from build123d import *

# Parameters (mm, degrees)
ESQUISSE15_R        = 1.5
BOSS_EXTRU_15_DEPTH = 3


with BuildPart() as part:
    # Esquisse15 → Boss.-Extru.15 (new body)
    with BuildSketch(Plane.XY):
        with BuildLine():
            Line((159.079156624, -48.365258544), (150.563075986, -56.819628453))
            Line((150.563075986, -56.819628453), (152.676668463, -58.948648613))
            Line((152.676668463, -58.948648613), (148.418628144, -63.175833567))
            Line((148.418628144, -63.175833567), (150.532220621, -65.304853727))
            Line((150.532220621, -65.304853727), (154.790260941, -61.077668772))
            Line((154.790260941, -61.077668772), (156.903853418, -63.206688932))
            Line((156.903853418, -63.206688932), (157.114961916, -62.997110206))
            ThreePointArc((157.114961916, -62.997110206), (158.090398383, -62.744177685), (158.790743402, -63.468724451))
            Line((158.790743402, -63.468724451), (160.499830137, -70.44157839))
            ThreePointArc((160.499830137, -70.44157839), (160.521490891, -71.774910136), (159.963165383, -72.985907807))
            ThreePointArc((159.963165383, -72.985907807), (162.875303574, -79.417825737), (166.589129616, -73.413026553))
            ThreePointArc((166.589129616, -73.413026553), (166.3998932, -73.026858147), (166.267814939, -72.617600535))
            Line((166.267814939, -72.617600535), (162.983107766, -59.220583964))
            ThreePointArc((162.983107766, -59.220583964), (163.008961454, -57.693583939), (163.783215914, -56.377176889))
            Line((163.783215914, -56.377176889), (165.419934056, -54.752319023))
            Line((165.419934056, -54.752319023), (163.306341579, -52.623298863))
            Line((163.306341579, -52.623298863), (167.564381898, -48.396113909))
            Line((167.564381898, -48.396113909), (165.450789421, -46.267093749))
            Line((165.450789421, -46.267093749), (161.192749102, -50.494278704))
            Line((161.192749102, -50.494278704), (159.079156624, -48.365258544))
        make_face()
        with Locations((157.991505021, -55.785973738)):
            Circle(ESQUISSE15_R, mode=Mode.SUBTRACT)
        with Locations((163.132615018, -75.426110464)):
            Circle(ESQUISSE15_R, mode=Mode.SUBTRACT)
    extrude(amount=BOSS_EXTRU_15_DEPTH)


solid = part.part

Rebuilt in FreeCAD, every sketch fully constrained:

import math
import FreeCAD as App
import Part
import Sketcher

V = App.Vector
Q = App.Units.Quantity

doc = App.newDocument("Part")
body = doc.addObject("PartDesign::Body", "Body")

sketch1 = body.newObject("Sketcher::SketchObject", "Sketch")
sketch1.AttachmentSupport = (doc.getObject("XY_Plane"), [""])
sketch1.MapMode = "FlatFace"
sketch1.addGeometry([
    Part.LineSegment(V(159.08, -48.37, 0), V(150.56, -56.82, 0)),
    Part.LineSegment(V(150.56, -56.82, 0), V(152.68, -58.95, 0)),
    Part.LineSegment(V(152.68, -58.95, 0), V(148.42, -63.18, 0)),
    Part.LineSegment(V(148.42, -63.18, 0), V(150.53, -65.3, 0)),
    Part.LineSegment(V(150.53, -65.3, 0), V(154.79, -61.08, 0)),
    Part.LineSegment(V(154.79, -61.08, 0), V(156.9, -63.21, 0)),
    Part.LineSegment(V(156.9, -63.21, 0), V(157.11, -63, 0)),
    Part.ArcOfCircle(Part.Circle(V(157.82, -63.71, 0), V(0, 0, 1), 1), math.radians(14), math.radians(135)),
    Part.LineSegment(V(158.79, -63.47, 0), V(160.5, -70.44, 0)),
    Part.ArcOfCircle(Part.Circle(V(157.59, -71.16, 0), V(0, 0, 1), 3), math.radians(-38), math.radians(14)),
    Part.ArcOfCircle(Part.Circle(V(163.13, -75.43, 0), V(0, 0, 1), 4), math.radians(142), math.radians(390)),
    Part.ArcOfCircle(Part.Circle(V(169.18, -71.9, 0), V(0, 0, 1), 3), math.radians(-166.22), math.radians(-149.78)),
    Part.LineSegment(V(166.27, -72.62, 0), V(162.98, -59.22, 0)),
    Part.ArcOfCircle(Part.Circle(V(165.9, -58.51, 0), V(0, 0, 1), 3), math.radians(135), math.radians(194)),
    Part.LineSegment(V(163.78, -56.38, 0), V(165.42, -54.75, 0)),
    Part.LineSegment(V(165.42, -54.75, 0), V(163.31, -52.62, 0)),
    Part.LineSegment(V(163.31, -52.62, 0), V(167.56, -48.4, 0)),
    Part.LineSegment(V(167.56, -48.4, 0), V(165.45, -46.27, 0)),
    Part.LineSegment(V(165.45, -46.27, 0), V(161.19, -50.49, 0)),
    Part.LineSegment(V(161.19, -50.49, 0), V(159.08, -48.37, 0)),
    Part.Circle(V(163.13, -75.43, 0), V(0, 0, 1), 1.5),
    Part.Circle(V(157.99, -55.79, 0), V(0, 0, 1), 1.5),
], False)
sketch1.addConstraint([
    Sketcher.Constraint("Coincident", 0, 2, 1, 1),
    Sketcher.Constraint("Coincident", 1, 2, 2, 1),
    Sketcher.Constraint("Coincident", 2, 2, 3, 1),
    Sketcher.Constraint("Coincident", 3, 2, 4, 1),
    Sketcher.Constraint("Coincident", 4, 2, 5, 1),
    Sketcher.Constraint("Coincident", 5, 2, 6, 1),
    Sketcher.Constraint("Tangent", 6, 2, 7, 2),
    Sketcher.Constraint("Tangent", 7, 1, 8, 1),
    Sketcher.Constraint("Tangent", 8, 2, 9, 2),
    Sketcher.Constraint("Tangent", 9, 1, 10, 1),
    Sketcher.Constraint("Tangent", 10, 2, 11, 2),
    Sketcher.Constraint("Tangent", 11, 1, 12, 1),
    Sketcher.Constraint("Tangent", 12, 2, 13, 2),
    Sketcher.Constraint("Tangent", 13, 1, 14, 1),
    Sketcher.Constraint("Coincident", 14, 2, 15, 1),
    Sketcher.Constraint("Coincident", 15, 2, 16, 1),
    Sketcher.Constraint("Coincident", 16, 2, 17, 1),
    Sketcher.Constraint("Coincident", 17, 2, 18, 1),
    Sketcher.Constraint("Coincident", 18, 2, 19, 1),
    Sketcher.Constraint("Coincident", 19, 2, 0, 1),
    Sketcher.Constraint("Coincident", 20, 3, 10, 3),
    Sketcher.Constraint("Equal", 9, 11),
    Sketcher.Constraint("Equal", 11, 13),
    Sketcher.Constraint("Equal", 20, 21),
    Sketcher.Constraint("Perpendicular", 0, 1),
    Sketcher.Constraint("Perpendicular", 1, 2),
    Sketcher.Constraint("Perpendicular", 2, 3),
    Sketcher.Constraint("Perpendicular", 3, 4),
    Sketcher.Constraint("Perpendicular", 4, 5),
    Sketcher.Constraint("Perpendicular", 5, 6),
    Sketcher.Constraint("Parallel", 6, 14),
    Sketcher.Constraint("Perpendicular", 14, 15),
    Sketcher.Constraint("Perpendicular", 15, 16),
    Sketcher.Constraint("Perpendicular", 16, 17),
    Sketcher.Constraint("Perpendicular", 17, 18),
    Sketcher.Constraint("Perpendicular", 18, 19),
    Sketcher.Constraint("Equal", 1, 3),
    Sketcher.Constraint("Equal", 2, 4),
    Sketcher.Constraint("Equal", 3, 5),
    Sketcher.Constraint("Equal", 5, 15),
    Sketcher.Constraint("Equal", 4, 16),
    Sketcher.Constraint("Equal", 15, 17),
    Sketcher.Constraint("Equal", 16, 18),
    Sketcher.Constraint("Equal", 17, 19),
    Sketcher.Constraint("Diameter", 20, Q("3 mm")),
    Sketcher.Constraint("Radius", 7, Q("1 mm")),
    Sketcher.Constraint("Radius", 9, Q("3 mm")),
    Sketcher.Constraint("Radius", 10, Q("4 mm")),
    Sketcher.Constraint("Distance", 0, Q("12 mm")),
    Sketcher.Constraint("Distance", 1, Q("3 mm")),
    Sketcher.Constraint("Distance", 2, Q("6 mm")),
    Sketcher.Constraint("DistanceY", 11, 1, -1, 1, Q("72.617601 mm")),
    Sketcher.Constraint("DistanceY", 15, 2, -1, 1, Q("52.623299 mm")),
    Sketcher.Constraint("DistanceX", 10, 3, 11, 3, Q("6.048901 mm")),
    Sketcher.Constraint("DistanceX", 4, 2, 6, 2, Q("2.324701 mm")),
    Sketcher.Constraint("DistanceX", 8, 2, 10, 2, Q("6.089299 mm")),
    Sketcher.Constraint("DistanceX", 11, 1, 11, 3, Q("2.913701 mm")),
    Sketcher.Constraint("DistanceY", 7, 3, 12, 2, Q("4.4862 mm")),
    Sketcher.Constraint("DistanceY", 13, 3, 15, 2, Q("5.882898 mm")),
    Sketcher.Constraint("DistanceX", -1, 1, 9, 3, Q("157.586078 mm")),
    Sketcher.Constraint("DistanceY", 7, 3, 21, 3, Q("7.92081 mm")),
    Sketcher.Constraint("DistanceX", 21, 3, 11, 3, Q("11.190011 mm")),
])
pad1 = body.newObject("PartDesign::Pad", "Pad")
pad1.Profile = sketch1
pad1.Length = 3

doc.recompute()
